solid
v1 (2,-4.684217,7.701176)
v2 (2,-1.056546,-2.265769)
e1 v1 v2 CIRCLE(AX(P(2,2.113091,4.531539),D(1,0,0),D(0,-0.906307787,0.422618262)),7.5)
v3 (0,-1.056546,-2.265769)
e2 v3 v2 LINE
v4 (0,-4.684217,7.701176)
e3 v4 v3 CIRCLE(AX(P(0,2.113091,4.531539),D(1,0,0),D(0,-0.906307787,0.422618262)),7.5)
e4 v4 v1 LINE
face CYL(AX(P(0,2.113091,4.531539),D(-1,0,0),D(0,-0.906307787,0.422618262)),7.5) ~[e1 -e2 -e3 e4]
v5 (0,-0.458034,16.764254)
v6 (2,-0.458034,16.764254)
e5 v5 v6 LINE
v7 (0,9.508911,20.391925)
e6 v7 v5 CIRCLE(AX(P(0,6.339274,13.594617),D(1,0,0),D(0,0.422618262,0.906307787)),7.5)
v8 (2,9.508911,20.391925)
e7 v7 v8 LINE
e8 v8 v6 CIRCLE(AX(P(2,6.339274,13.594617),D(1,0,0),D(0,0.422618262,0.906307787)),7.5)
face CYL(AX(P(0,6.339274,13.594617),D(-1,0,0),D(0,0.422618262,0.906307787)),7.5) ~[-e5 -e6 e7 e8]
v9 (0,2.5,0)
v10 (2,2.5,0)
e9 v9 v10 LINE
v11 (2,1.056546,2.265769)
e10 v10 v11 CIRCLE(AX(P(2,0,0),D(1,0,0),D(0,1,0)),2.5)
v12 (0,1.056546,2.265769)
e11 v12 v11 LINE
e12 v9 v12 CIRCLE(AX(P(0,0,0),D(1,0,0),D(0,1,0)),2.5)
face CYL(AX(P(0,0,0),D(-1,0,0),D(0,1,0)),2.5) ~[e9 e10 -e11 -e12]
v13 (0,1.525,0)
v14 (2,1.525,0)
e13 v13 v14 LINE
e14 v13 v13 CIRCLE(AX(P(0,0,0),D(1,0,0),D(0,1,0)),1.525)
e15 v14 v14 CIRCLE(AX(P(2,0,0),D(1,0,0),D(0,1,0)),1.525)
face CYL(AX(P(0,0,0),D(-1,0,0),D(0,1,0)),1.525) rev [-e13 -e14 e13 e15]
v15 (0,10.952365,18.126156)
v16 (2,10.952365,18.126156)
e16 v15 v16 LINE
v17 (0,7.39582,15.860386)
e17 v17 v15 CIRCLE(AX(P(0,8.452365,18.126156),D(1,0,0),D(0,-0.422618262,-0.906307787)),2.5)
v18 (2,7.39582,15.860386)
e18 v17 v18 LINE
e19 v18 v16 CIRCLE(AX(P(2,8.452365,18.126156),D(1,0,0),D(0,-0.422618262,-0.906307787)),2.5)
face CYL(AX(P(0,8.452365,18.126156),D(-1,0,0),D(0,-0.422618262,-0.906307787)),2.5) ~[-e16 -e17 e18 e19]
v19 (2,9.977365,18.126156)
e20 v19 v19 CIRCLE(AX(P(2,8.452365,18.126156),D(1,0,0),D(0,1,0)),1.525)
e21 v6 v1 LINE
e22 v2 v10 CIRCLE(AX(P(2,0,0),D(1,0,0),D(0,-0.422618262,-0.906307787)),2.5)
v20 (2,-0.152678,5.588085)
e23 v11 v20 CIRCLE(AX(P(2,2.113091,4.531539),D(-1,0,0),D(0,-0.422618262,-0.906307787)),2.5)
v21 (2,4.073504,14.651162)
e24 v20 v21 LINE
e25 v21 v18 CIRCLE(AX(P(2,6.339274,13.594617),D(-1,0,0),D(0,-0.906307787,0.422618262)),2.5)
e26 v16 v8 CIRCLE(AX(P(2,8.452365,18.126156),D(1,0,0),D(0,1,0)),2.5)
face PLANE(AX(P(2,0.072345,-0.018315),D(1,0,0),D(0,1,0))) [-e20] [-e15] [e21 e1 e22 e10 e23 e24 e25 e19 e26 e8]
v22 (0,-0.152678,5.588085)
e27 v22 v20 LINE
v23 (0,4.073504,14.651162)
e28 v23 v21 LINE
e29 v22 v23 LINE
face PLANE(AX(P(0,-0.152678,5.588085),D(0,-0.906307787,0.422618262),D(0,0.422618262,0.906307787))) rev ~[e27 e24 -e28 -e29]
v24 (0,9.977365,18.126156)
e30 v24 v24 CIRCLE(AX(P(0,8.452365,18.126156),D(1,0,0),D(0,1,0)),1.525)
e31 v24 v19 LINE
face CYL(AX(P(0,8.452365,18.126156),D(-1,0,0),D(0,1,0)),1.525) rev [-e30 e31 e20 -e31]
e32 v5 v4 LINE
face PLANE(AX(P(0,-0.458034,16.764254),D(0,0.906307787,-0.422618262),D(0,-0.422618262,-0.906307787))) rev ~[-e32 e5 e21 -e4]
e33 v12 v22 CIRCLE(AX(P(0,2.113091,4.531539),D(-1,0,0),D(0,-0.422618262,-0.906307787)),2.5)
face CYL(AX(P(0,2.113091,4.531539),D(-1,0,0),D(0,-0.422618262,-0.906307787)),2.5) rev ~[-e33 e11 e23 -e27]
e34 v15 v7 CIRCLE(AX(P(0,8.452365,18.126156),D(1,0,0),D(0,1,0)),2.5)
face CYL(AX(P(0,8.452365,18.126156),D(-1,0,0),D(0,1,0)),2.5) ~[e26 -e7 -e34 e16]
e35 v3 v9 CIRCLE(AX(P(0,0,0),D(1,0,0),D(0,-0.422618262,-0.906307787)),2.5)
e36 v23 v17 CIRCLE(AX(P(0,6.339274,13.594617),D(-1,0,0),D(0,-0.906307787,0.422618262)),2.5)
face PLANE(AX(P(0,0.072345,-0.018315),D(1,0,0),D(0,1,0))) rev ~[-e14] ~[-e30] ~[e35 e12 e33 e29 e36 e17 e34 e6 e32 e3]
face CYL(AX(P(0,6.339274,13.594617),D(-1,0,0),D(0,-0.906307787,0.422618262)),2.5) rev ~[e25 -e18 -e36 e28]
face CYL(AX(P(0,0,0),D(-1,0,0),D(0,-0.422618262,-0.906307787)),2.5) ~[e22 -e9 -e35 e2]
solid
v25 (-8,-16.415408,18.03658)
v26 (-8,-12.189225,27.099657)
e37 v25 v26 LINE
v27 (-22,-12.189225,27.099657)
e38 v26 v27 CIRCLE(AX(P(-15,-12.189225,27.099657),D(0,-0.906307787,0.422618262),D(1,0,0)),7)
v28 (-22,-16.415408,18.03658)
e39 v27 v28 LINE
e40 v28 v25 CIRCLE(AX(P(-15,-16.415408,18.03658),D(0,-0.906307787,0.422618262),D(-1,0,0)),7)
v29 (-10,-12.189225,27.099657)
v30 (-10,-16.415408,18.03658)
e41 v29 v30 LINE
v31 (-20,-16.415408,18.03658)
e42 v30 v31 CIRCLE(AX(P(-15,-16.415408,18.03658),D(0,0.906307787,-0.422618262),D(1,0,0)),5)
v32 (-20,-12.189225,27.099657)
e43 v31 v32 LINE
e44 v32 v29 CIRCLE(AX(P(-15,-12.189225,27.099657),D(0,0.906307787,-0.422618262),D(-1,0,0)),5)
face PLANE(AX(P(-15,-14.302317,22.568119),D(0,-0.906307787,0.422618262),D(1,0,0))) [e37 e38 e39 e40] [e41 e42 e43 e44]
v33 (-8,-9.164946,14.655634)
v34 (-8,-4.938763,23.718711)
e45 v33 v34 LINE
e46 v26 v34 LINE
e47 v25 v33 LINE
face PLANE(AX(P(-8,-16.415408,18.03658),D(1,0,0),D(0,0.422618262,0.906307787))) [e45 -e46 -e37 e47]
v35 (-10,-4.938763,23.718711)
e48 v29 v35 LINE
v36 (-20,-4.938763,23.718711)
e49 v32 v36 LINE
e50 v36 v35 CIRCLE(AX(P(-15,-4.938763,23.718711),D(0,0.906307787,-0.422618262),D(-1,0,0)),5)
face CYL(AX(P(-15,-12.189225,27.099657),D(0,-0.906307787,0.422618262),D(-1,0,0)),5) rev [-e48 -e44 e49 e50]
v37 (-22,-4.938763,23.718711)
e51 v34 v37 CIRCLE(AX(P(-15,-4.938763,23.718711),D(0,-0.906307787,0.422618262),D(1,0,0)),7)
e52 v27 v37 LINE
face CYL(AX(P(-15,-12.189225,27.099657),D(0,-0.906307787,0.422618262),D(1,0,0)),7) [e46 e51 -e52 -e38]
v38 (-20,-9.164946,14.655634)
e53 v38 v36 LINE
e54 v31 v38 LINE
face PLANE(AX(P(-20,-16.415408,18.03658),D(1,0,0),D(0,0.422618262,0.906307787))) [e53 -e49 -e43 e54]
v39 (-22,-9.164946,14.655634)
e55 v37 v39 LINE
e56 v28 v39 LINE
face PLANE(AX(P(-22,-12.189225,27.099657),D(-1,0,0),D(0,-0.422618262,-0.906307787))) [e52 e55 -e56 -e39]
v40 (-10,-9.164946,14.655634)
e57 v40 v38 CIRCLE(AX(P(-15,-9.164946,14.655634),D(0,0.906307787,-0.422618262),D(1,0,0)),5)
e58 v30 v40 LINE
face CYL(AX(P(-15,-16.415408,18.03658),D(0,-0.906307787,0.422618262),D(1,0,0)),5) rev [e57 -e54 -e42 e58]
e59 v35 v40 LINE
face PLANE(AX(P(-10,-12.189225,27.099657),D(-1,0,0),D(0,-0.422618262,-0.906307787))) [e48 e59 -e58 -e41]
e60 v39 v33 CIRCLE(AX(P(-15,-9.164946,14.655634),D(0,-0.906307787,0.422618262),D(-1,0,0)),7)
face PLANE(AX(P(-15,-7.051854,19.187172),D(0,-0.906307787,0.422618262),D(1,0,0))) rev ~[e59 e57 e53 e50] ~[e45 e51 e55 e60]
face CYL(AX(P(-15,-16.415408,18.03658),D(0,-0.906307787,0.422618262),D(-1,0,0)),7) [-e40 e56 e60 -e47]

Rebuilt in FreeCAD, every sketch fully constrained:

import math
import FreeCAD as App
import Part
import Sketcher

V = App.Vector
Q = App.Units.Quantity

doc = App.newDocument("Part")
params = doc.addObject("Spreadsheet::Sheet", "Params")
for row, (alias, value) in enumerate([
    ("sketch1_radius", "2.5 mm"),
    ("sketch1_diameter", "3.05 mm"),
    ("sketch1_length", "10 mm"),
    ("pad1_length", "2 mm"),
    ("sketch2_radius", "7 mm"),
    ("sketch2_radius2", "5 mm"),
    ("sketch2_height", "10 mm"),
    ("pad2_length", "8 mm"),
], start=1):
    params.set(f"A{row}", alias)
    params.set(f"B{row}", "=" + value)
    params.setAlias(f"B{row}", alias)

body = doc.addObject("PartDesign::Body", "Body")

sketch1 = body.newObject("Sketcher::SketchObject", "Sketch")
sketch1.AttachmentSupport = (doc.getObject("YZ_Plane"), [""])
sketch1.MapMode = "FlatFace"
sketch1.addGeometry(Part.ArcOfCircle(Part.Circle(V(0, 0, 0), V(0, 0, 1), 2.5), math.radians(-115), math.radians(0)), False)
sketch1.addGeometry(Part.ArcOfCircle(Part.Circle(V(0, 0, 0), V(0, 0, 1), 2.5), math.radians(0), math.radians(65)), False)
sketch1.addGeometry(Part.ArcOfCircle(Part.Circle(V(2.1, 4.5, 0), V(0, 0, 1), 2.5), math.radians(155), math.radians(245)), False)
sketch1.addGeometry(Part.LineSegment(V(-0.2, 5.6, 0), V(4.1, 14.7, 0)), False)
sketch1.addGeometry(Part.ArcOfCircle(Part.Circle(V(6.3, 13.6, 0), V(0, 0, 1), 2.5), math.radians(65), math.radians(155)), False)
sketch1.addGeometry(Part.ArcOfCircle(Part.Circle(V(8.5, 18.1, 0), V(0, 0, 1), 2.5), math.radians(-115), math.radians(0)), False)
sketch1.addGeometry(Part.ArcOfCircle(Part.Circle(V(8.5, 18.1, 0), V(0, 0, 1), 2.5), math.radians(0), math.radians(65)), False)
sketch1.addGeometry(Part.ArcOfCircle(Part.Circle(V(6.3, 13.6, 0), V(0, 0, 1), 7.5), math.radians(65), math.radians(155)), False)
sketch1.addGeometry(Part.LineSegment(V(-0.5, 16.8, 0), V(-4.7, 7.7, 0)), False)
sketch1.addGeometry(Part.ArcOfCircle(Part.Circle(V(2.1, 4.5, 0), V(0, 0, 1), 7.5), math.radians(155), math.radians(245)), False)
sketch1.addGeometry(Part.Circle(V(0, 0, 0), V(0, 0, 1), 1.5), False)
sketch1.addGeometry(Part.Circle(V(8.5, 18.1, 0), V(0, 0, 1), 1.5), False)
sketch1.addConstraint(Sketcher.Constraint("Tangent", 0, 2, 1, 1))
sketch1.addConstraint(Sketcher.Constraint("Tangent", 1, 2, 2, 2))
sketch1.addConstraint(Sketcher.Constraint("Tangent", 2, 1, 3, 1))
sketch1.addConstraint(Sketcher.Constraint("Tangent", 3, 2, 4, 2))
sketch1.addConstraint(Sketcher.Constraint("Tangent", 4, 1, 5, 1))
sketch1.addConstraint(Sketcher.Constraint("Tangent", 5, 2, 6, 1))
sketch1.addConstraint(Sketcher.Constraint("Tangent", 6, 2, 7, 1))
sketch1.addConstraint(Sketcher.Constraint("Tangent", 7, 2, 8, 1))
sketch1.addConstraint(Sketcher.Constraint("Tangent", 8, 2, 9, 1))
sketch1.addConstraint(Sketcher.Constraint("Tangent", 9, 2, 0, 1))
sketch1.addConstraint(Sketcher.Constraint("Coincident", 0, 3, -1, 1))
sketch1.addConstraint(Sketcher.Constraint("Coincident", 10, 3, -1, 1))
sketch1.addConstraint(Sketcher.Constraint("Coincident", 7, 3, 4, 3))
sketch1.addConstraint(Sketcher.Constraint("Coincident", 9, 3, 2, 3))
sketch1.addConstraint(Sketcher.Constraint("Coincident", 11, 3, 5, 3))
sketch1.addConstraint(Sketcher.Constraint("Equal", 0, 1))
sketch1.addConstraint(Sketcher.Constraint("Equal", 1, 2))
sketch1.addConstraint(Sketcher.Constraint("Equal", 2, 4))
sketch1.addConstraint(Sketcher.Constraint("Equal", 4, 5))
sketch1.addConstraint(Sketcher.Constraint("Equal", 5, 6))
sketch1.addConstraint(Sketcher.Constraint("Equal", 10, 11))
sketch1.addConstraint(Sketcher.Constraint("PointOnObject", 0, 2, -1))
sketch1.addConstraint(Sketcher.Constraint("Horizontal", 11, 3, 5, 2))
sketch1.addConstraint(Sketcher.Constraint("Radius", 0, Q("2.5 mm")))
sketch1.addConstraint(Sketcher.Constraint("Diameter", 10, Q("3.05 mm")))
sketch1.addConstraint(Sketcher.Constraint("Angle", 3, Q("65 deg")))
sketch1.addConstraint(Sketcher.Constraint("Distance", 3, Q("10 mm")))
sketch1.addConstraint(Sketcher.Constraint("DistanceX", 7, 2, 5, 3, Q("8.9104 mm")))
sketch1.addConstraint(Sketcher.Constraint("DistanceX", -1, 1, 2, 3, Q("2.113091 mm")))
sketch1.setExpression("Constraints[23]", "Params.sketch1_radius")
sketch1.setExpression("Constraints[24]", "Params.sketch1_diameter")
sketch1.setExpression("Constraints[26]", "Params.sketch1_length")
pad1 = body.newObject("PartDesign::Pad", "Pad")
pad1.Profile = sketch1
pad1.setExpression("Length", "Params.pad1_length")
body2 = doc.addObject("PartDesign::Body", "Body001")

sketch2 = body2.newObject("Sketcher::SketchObject", "Sketch001")
sketch2.Placement = App.Placement(V(0, -20.391925, 9.508911), App.Rotation(V(1, 0, 0), V(0, 0.422618262, 0.906307787), V(0, -0.906307787, 0.422618262), "ZXY"))
sketch2.addGeometry(Part.ArcOfCircle(Part.Circle(V(-15, 19, 0), V(0, 0, 1), 7), math.radians(0), math.radians(180)), False)
sketch2.addGeometry(Part.LineSegment(V(-22, 19, 0), V(-22, 9, 0)), False)
sketch2.addGeometry(Part.ArcOfCircle(Part.Circle(V(-15, 9, 0), V(0, 0, 1), 7), math.radians(180), math.radians(360)), False)
sketch2.addGeometry(Part.LineSegment(V(-8, 9, 0), V(-8, 19, 0)), False)
sketch2.addGeometry(Part.ArcOfCircle(Part.Circle(V(-15, 19, 0), V(0, 0, 1), 5), math.radians(0), math.radians(180)), False)
sketch2.addGeometry(Part.LineSegment(V(-10, 19, 0), V(-10, 9, 0)), False)
sketch2.addGeometry(Part.ArcOfCircle(Part.Circle(V(-15, 9, 0), V(0, 0, 1), 5), math.radians(180), math.radians(360)), False)
sketch2.addGeometry(Part.LineSegment(V(-20, 9, 0), V(-20, 19, 0)), False)
sketch2.addConstraint(Sketcher.Constraint("Tangent", 0, 2, 1, 1))
sketch2.addConstraint(Sketcher.Constraint("Tangent", 1, 2, 2, 1))
sketch2.addConstraint(Sketcher.Constraint("Tangent", 2, 2, 3, 1))
sketch2.addConstraint(Sketcher.Constraint("Tangent", 3, 2, 0, 1))
sketch2.addConstraint(Sketcher.Constraint("Tangent", 4, 1, 5, 1))
sketch2.addConstraint(Sketcher.Constraint("Tangent", 5, 2, 6, 2))
sketch2.addConstraint(Sketcher.Constraint("Tangent", 6, 1, 7, 1))
sketch2.addConstraint(Sketcher.Constraint("Tangent", 7, 2, 4, 2))
sketch2.addConstraint(Sketcher.Constraint("Vertical", 1))
sketch2.addConstraint(Sketcher.Constraint("Vertical", 3))
sketch2.addConstraint(Sketcher.Constraint("Vertical", 5))
sketch2.addConstraint(Sketcher.Constraint("Vertical", 7))
sketch2.addConstraint(Sketcher.Constraint("Coincident", 4, 3, 0, 3))
sketch2.addConstraint(Sketcher.Constraint("Horizontal", 6, 3, 1, 2))
sketch2.addConstraint(Sketcher.Constraint("Radius", 0, Q("7 mm")))
sketch2.addConstraint(Sketcher.Constraint("Radius", 4, Q("5 mm")))
sketch2.addConstraint(Sketcher.Constraint("DistanceY", 1, 2, 1, 1, Q("10 mm")))
sketch2.addConstraint(Sketcher.Constraint("DistanceX", 0, 3, -1, 1, Q("15 mm")))
sketch2.addConstraint(Sketcher.Constraint("DistanceY", -1, 1, 0, 3, Q("19.409241 mm")))
sketch2.setExpression("Constraints[14]", "Params.sketch2_radius")
sketch2.setExpression("Constraints[15]", "Params.sketch2_radius2")
sketch2.setExpression("Constraints[16]", "Params.sketch2_height")
pad2 = body2.newObject("PartDesign::Pad", "Pad001")
pad2.Profile = sketch2
pad2.setExpression("Length", "Params.pad2_length")
pad2.Reversed = True

doc.recompute()
